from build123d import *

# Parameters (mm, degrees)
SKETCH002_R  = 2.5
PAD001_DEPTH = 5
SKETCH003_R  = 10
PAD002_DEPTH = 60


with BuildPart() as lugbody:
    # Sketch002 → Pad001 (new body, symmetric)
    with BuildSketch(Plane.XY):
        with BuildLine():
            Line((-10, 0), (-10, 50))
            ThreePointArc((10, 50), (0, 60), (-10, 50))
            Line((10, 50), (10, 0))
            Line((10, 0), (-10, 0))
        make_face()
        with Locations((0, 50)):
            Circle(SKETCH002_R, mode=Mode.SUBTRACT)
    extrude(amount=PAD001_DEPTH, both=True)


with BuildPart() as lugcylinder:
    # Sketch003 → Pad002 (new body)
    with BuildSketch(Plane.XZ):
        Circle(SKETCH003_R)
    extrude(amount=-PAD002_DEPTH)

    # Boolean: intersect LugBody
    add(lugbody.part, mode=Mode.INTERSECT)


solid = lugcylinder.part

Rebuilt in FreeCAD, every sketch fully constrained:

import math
import FreeCAD as App
import Part
import Sketcher
Q = App.Units.Quantity

doc = App.newDocument("Part")
body = doc.addObject("PartDesign::Body", "Body")

sketch1 = body.newObject("Sketcher::SketchObject", "Sketch")
sketch1.AttachmentSupport = (doc.getObject("XY_Plane"), [""])
sketch1.MapMode = "FlatFace"
sketch1.addGeometry([
    Part.LineSegment(App.Vector(-10, 50, 0), App.Vector(-10, 0, 0)),
    Part.LineSegment(App.Vector(-10, 0, 0), App.Vector(10, 0, 0)),
    Part.LineSegment(App.Vector(10, 0, 0), App.Vector(10, 50, 0)),
    Part.ArcOfCircle(Part.Circle(App.Vector(0, 50, 0), App.Vector(0, 0, 1), 10), math.radians(0), math.radians(180)),
    Part.Circle(App.Vector(0, 50, 0), App.Vector(0, 0, 1), 2.5),
], False)
sketch1.addConstraint([
    Sketcher.Constraint("Coincident", 0, 2, 1, 1),
    Sketcher.Constraint("Coincident", 1, 2, 2, 1),
    Sketcher.Constraint("Tangent", 2, 2, 3, 1),
    Sketcher.Constraint("Tangent", 3, 2, 0, 1),
    Sketcher.Constraint("Vertical", 0),
    Sketcher.Constraint("Horizontal", 1),
    Sketcher.Constraint("Vertical", 2),
    Sketcher.Constraint("Coincident", 4, 3, 3, 3),
    Sketcher.Constraint("Symmetric", 0, 2, 1, 2, -1, 1),
    Sketcher.Constraint("Diameter", 4, Q("5 mm")),
    Sketcher.Constraint("Radius", 3, Q("10 mm")),
    Sketcher.Constraint("DistanceY", 0, 2, 0, 1, Q("50 mm")),
])
pad1 = body.newObject("PartDesign::Pad", "Pad")
pad1.Profile = sketch1
pad1.Length = 10
pad1.Midplane = True
body2 = doc.addObject("PartDesign::Body", "Body001")

sketch2 = body2.newObject("Sketcher::SketchObject", "Sketch001")
sketch2.AttachmentSupport = (doc.getObject("XZ_Plane001"), [""])
sketch2.MapMode = "FlatFace"
sketch2.addGeometry(Part.Circle(App.Vector(0, 0, 0), App.Vector(0, 0, 1), 10), False)
sketch2.addConstraint([
    Sketcher.Constraint("Coincident", 0, 3, -1, 1),
    Sketcher.Constraint("Diameter", 0, Q("20 mm")),
])
pad2 = body2.newObject("PartDesign::Pad", "Pad001")
pad2.Profile = sketch2
pad2.Length = 60
pad2.Reversed = True
doc.recompute()

boolean = body2.newObject("PartDesign::Boolean", "Boolean")
boolean.Type = "Common"
boolean.addObjects([body])

doc.recompute()
